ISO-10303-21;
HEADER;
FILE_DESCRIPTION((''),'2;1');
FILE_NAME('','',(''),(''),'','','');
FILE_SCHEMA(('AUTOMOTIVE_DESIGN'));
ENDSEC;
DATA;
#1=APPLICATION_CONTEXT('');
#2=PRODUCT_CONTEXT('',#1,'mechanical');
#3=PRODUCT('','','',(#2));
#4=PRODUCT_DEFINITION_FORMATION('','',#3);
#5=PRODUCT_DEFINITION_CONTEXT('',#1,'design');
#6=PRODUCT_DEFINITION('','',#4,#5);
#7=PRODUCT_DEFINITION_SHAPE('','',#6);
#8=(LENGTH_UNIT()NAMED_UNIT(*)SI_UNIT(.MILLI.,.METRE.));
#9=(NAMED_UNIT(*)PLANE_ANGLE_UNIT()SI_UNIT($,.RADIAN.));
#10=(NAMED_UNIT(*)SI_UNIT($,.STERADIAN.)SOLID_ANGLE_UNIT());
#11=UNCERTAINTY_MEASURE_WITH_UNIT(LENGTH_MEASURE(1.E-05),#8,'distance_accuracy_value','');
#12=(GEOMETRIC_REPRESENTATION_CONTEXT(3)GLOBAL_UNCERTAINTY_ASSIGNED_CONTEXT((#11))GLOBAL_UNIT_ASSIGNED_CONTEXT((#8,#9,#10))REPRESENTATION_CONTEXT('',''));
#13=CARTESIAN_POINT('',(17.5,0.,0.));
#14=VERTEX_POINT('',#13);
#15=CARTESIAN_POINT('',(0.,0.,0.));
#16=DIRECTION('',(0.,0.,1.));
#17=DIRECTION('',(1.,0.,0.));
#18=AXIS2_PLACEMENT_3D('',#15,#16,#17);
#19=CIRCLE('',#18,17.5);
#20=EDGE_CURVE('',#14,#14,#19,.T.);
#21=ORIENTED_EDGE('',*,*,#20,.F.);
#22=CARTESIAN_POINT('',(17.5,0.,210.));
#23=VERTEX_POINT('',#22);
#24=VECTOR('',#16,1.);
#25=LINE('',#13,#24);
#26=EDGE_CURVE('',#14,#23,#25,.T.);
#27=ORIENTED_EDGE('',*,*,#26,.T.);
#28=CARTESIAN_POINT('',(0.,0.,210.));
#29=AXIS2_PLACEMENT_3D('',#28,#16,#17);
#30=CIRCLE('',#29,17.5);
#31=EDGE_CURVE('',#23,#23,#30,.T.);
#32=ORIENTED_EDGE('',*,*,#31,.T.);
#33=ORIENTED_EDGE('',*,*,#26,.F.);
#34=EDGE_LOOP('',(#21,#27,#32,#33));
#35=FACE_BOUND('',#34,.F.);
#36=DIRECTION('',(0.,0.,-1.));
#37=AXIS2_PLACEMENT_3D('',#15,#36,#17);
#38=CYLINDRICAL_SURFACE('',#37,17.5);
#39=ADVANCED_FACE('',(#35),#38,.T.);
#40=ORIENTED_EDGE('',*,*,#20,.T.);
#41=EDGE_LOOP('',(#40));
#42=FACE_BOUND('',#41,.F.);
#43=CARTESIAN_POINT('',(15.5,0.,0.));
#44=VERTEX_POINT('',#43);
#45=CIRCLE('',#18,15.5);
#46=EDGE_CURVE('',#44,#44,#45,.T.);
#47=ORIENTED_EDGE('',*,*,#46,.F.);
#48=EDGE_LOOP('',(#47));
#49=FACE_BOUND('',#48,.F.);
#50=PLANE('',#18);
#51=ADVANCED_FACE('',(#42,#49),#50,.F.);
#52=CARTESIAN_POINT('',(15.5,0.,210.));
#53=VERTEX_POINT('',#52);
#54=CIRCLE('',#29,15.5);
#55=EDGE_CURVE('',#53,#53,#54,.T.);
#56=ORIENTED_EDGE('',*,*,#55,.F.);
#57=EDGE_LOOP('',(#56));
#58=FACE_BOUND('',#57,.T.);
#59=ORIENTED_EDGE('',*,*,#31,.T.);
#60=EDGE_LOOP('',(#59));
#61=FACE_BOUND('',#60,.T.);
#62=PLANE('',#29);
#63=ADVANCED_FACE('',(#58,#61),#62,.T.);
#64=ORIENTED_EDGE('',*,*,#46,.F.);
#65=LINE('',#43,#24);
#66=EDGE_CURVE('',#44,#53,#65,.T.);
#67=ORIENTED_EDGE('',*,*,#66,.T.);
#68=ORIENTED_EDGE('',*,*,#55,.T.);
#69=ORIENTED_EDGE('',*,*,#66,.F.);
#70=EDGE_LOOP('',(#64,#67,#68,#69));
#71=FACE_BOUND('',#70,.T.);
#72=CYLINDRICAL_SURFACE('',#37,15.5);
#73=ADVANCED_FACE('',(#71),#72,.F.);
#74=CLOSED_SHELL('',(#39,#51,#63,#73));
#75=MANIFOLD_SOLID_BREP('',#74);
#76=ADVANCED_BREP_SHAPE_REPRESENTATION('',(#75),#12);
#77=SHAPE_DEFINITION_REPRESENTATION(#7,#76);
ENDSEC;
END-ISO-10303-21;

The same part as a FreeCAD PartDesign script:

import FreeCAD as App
import Part
import Sketcher

V = App.Vector
Q = App.Units.Quantity

doc = App.newDocument("Part")
params = doc.addObject("Spreadsheet::Sheet", "Params")
for row, (alias, value) in enumerate([
    ("sketch1_diameter", "35 mm"),
    ("sketch1_diameter2", "31 mm"),
    ("pad1_length", "210 mm"),
], start=1):
    params.set(f"A{row}", alias)
    params.set(f"B{row}", "=" + value)
    params.setAlias(f"B{row}", alias)

body = doc.addObject("PartDesign::Body", "Body")

# Sketch on XY plane
sketch1 = doc.addObject("Sketcher::SketchObject", "Sketch")
body.addObject(sketch1)
sketch1.AttachmentSupport = (doc.XY_Plane, [""])
sketch1.MapMode = "FlatFace"
sketch1.addGeometry([
    Part.Circle(V(0, 0, 0), V(0, 0, 1), 18),
    Part.Circle(V(0, 0, 0), V(0, 0, 1), 16),
], False)
sketch1.addConstraint([
    Sketcher.Constraint("Coincident", 0, 3, -1, 1),
    Sketcher.Constraint("Coincident", 1, 3, -1, 1),
    Sketcher.Constraint("Diameter", 0, Q("35 mm")),
    Sketcher.Constraint("Diameter", 1, Q("31 mm")),
])
sketch1.setExpression("Constraints[2]", "Params.sketch1_diameter")
sketch1.setExpression("Constraints[3]", "Params.sketch1_diameter2")
pad1 = doc.addObject("PartDesign::Pad", "Pad")
body.addObject(pad1)
pad1.Profile = sketch1
pad1.setExpression("Length", "Params.pad1_length")

doc.recompute()
